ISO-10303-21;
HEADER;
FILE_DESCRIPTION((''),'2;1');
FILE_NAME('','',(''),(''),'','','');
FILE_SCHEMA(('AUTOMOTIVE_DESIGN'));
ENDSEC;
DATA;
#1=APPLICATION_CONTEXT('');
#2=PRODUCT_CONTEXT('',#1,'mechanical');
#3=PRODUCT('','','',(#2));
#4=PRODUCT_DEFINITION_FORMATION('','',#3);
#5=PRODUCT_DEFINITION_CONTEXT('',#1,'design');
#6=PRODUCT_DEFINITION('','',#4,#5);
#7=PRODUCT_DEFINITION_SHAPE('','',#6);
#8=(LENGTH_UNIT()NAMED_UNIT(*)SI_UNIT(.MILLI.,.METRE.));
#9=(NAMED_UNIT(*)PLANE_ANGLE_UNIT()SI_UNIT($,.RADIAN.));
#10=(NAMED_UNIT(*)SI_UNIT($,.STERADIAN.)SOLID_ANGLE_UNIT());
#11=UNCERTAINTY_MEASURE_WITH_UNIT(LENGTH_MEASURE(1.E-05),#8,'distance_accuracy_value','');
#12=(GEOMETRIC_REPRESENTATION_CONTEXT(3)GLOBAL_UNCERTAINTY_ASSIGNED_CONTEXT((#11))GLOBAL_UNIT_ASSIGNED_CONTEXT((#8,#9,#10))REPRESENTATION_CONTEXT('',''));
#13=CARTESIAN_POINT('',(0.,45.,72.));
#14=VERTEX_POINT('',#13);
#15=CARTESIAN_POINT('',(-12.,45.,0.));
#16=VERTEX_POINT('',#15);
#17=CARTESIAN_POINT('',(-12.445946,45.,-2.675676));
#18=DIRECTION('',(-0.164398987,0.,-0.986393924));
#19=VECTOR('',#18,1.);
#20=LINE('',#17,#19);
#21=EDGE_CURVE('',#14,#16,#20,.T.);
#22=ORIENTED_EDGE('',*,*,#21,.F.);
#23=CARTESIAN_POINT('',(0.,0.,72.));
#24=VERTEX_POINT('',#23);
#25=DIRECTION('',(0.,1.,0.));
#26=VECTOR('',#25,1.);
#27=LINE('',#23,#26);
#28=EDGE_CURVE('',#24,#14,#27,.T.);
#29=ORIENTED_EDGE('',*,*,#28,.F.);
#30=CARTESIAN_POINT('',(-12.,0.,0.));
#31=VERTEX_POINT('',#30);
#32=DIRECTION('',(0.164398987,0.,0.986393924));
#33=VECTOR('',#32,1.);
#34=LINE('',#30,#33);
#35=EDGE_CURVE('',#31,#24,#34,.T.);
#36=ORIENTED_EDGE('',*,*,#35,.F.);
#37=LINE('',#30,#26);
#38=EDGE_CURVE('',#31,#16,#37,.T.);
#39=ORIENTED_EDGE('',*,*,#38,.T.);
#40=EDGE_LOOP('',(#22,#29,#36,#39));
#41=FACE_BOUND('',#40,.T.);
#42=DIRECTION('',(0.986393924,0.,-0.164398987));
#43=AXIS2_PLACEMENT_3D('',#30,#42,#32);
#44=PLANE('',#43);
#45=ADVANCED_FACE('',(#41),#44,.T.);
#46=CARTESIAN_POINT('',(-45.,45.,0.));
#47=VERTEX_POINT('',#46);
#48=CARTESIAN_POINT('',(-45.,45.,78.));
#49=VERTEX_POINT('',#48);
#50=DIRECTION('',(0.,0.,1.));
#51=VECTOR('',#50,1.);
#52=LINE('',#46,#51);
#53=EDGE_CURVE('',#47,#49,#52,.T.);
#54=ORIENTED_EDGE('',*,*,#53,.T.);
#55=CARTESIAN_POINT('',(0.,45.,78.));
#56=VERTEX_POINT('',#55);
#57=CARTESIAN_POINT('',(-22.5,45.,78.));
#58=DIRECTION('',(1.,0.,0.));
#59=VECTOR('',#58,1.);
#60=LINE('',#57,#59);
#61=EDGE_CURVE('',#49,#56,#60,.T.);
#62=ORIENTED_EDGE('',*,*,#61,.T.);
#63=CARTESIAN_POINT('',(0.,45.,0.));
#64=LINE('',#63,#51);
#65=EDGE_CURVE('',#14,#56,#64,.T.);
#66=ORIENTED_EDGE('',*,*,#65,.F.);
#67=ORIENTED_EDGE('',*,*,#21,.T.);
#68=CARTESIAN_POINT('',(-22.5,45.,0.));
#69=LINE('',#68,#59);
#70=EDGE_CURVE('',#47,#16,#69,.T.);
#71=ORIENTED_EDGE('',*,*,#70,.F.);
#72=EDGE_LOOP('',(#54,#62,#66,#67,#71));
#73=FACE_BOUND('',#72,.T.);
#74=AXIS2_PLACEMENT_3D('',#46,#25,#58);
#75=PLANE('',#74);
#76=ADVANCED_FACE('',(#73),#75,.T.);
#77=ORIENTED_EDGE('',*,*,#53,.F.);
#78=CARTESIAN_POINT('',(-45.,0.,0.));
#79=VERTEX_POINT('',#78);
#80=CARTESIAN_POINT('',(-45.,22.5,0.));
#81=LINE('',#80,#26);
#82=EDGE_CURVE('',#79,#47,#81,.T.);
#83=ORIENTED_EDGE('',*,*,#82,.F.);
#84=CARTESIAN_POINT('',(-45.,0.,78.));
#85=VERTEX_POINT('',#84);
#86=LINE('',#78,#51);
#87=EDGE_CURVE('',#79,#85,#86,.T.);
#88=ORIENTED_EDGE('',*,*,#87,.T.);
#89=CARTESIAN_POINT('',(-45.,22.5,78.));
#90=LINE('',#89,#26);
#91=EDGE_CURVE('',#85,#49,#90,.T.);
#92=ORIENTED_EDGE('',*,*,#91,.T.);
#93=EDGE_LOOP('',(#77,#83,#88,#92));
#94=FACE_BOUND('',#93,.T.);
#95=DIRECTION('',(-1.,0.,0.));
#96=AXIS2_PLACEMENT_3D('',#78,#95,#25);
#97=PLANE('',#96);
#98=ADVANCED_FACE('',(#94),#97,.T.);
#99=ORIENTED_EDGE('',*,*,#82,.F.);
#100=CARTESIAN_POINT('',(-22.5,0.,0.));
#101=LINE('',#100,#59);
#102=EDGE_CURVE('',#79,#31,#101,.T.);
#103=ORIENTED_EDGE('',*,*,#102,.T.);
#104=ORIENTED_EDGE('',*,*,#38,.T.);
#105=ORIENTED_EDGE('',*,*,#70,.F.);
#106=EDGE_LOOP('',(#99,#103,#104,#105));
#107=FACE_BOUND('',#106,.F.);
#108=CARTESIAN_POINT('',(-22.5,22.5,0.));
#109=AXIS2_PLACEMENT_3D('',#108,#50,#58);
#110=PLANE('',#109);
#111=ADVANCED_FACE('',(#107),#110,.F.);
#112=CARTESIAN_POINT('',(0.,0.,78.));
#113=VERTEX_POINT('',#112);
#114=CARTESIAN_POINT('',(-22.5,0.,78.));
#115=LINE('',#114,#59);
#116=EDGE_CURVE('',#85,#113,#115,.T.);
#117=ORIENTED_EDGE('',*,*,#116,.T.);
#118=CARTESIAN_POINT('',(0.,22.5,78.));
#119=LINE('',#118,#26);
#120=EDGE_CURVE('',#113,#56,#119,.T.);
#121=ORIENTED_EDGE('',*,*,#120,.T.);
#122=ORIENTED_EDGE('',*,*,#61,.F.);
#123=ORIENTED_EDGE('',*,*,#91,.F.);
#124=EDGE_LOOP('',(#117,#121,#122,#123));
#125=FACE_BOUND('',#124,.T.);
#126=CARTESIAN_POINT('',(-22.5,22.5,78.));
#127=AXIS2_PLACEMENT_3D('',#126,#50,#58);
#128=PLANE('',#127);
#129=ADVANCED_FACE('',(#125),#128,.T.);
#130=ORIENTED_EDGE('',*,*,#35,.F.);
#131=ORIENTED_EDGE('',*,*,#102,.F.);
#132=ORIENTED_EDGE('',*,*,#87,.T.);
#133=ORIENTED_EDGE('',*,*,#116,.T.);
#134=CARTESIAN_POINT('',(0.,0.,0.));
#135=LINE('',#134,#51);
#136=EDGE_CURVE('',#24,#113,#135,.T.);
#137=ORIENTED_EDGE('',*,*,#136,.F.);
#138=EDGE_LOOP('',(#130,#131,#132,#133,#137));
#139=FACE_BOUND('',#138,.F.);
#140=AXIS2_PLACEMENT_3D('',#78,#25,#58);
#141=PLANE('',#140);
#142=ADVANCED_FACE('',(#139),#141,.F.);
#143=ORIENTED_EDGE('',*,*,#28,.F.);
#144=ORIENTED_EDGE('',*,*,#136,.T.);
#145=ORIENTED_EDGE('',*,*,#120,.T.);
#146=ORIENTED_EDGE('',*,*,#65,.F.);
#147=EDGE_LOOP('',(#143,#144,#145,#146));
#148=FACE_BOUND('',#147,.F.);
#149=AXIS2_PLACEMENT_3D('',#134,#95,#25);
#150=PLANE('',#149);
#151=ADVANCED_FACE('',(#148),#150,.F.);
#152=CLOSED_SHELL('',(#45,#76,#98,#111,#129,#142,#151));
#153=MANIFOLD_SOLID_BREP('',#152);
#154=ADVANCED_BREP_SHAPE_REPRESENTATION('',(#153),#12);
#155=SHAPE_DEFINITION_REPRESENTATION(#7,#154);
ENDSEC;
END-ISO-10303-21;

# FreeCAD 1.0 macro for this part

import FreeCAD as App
import Part
import Sketcher

V = App.Vector
Q = App.Units.Quantity


def add_polygon(sketch, points):
    """Adds a closed chain of lines whose ends are joined by coincident constraints."""
    first, n = sketch.GeometryCount, len(points)
    for a, b in zip(points, points[1:] + points[:1]):
        sketch.addGeometry(Part.LineSegment(App.Vector(*a, 0), App.Vector(*b, 0)), False)
    for i in range(n):
        sketch.addConstraint(Sketcher.Constraint("Coincident", first + i, 2, first + (i + 1) % n, 1))

doc = App.newDocument("Part")
body = doc.addObject("PartDesign::Body", "Body")

# Sketch on XY plane
sketch1 = body.newObject("Sketcher::SketchObject", "Sketch")
sketch1.AttachmentSupport = (doc.getObject("XY_Plane"), [""])
sketch1.MapMode = "FlatFace"
add_polygon(sketch1, [(-45, 45), (-45, 0), (0, 0), (0, 45)])  # lines 0-3
sketch1.addConstraint(Sketcher.Constraint("Vertical", 0))
sketch1.addConstraint(Sketcher.Constraint("Horizontal", 1))
sketch1.addConstraint(Sketcher.Constraint("Vertical", 2))
sketch1.addConstraint(Sketcher.Constraint("Horizontal", 3))
sketch1.addConstraint(Sketcher.Constraint("Coincident", 1, 2, -1, 1))
sketch1.addConstraint(Sketcher.Constraint("Equal", 3, 0))
sketch1.addConstraint(Sketcher.Constraint("DistanceX", 1, 1, 1, 2, Q("45 mm")))
pad1 = body.newObject("PartDesign::Pad", "Pad")
pad1.Profile = sketch1
pad1.Length = 78

# Sketch on XZ plane
sketch2 = body.newObject("Sketcher::SketchObject", "Sketch001")
sketch2.AttachmentSupport = (doc.getObject("XZ_Plane"), [""])
sketch2.MapMode = "FlatFace"
add_polygon(sketch2, [(0, 72), (-12, 0), (0, 0)])  # lines 0-2
sketch2.addConstraint(Sketcher.Constraint("Horizontal", 1))
sketch2.addConstraint(Sketcher.Constraint("Vertical", 2))
sketch2.addConstraint(Sketcher.Constraint("Coincident", 1, 2, -1, 1))
sketch2.addConstraint(Sketcher.Constraint("DistanceX", 1, 1, 1, 2, Q("12 mm")))
sketch2.addConstraint(Sketcher.Constraint("DistanceY", 2, 1, 2, 2, Q("72 mm")))
pocket1 = body.newObject("PartDesign::Pocket", "Pocket")
pocket1.Profile = sketch2
pocket1.Type = "ThroughAll"

doc.recompute()
